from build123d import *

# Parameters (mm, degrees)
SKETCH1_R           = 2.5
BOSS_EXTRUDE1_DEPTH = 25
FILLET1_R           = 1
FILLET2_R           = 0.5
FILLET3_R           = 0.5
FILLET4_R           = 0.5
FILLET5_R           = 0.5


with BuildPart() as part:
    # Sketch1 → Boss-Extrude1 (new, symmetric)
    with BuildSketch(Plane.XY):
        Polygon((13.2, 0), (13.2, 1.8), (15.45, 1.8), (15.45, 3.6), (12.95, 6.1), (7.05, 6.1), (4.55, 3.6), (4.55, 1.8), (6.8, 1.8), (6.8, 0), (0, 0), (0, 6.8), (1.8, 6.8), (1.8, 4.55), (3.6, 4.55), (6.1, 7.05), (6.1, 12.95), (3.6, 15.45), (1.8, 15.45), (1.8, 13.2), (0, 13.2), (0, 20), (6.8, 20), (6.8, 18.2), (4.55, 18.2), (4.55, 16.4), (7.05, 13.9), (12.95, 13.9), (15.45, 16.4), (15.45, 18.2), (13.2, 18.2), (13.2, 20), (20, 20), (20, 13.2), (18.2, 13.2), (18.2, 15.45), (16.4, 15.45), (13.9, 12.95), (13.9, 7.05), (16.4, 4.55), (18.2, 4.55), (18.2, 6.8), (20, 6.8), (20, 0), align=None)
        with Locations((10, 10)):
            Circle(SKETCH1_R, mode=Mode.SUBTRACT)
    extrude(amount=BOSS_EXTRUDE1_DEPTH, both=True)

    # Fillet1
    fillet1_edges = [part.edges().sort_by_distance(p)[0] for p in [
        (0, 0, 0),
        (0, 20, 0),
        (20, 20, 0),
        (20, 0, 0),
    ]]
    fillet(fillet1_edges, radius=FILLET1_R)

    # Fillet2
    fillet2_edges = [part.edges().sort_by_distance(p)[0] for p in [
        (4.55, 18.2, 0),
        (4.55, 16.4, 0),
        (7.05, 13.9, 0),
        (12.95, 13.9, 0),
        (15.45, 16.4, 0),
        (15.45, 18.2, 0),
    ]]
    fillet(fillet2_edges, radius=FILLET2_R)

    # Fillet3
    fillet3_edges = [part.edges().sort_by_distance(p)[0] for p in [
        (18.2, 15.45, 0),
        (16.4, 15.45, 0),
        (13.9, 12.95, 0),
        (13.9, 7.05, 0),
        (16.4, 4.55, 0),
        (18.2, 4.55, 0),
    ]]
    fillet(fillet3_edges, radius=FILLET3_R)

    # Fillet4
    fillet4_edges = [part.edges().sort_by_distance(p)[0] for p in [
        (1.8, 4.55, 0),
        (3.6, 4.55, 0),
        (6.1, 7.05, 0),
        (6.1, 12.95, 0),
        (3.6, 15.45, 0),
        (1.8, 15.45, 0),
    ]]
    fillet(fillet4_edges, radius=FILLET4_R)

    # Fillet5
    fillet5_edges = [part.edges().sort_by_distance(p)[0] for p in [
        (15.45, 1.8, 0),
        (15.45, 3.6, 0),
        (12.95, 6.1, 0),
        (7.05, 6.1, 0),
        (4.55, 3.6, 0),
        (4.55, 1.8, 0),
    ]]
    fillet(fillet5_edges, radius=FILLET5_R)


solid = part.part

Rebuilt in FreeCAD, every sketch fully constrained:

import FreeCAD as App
import Part
import Sketcher
from FreeCAD import Vector
Q = App.Units.Quantity


def edges_at(feature, points):
    """Names of the edges that pass closest to the given points."""
    edges = feature.Shape.Edges
    near = lambda p: min(range(len(edges)), key=lambda i: edges[i].distToShape(Part.Vertex(*p))[0])
    return sorted({f"Edge{near(p) + 1}" for p in points})


def add_polygon(sketch, points):
    """Adds a closed chain of lines whose ends are joined by coincident constraints."""
    first, n = sketch.GeometryCount, len(points)
    for a, b in zip(points, points[1:] + points[:1]):
        sketch.addGeometry(Part.LineSegment(App.Vector(*a, 0), App.Vector(*b, 0)), False)
    for i in range(n):
        sketch.addConstraint(Sketcher.Constraint("Coincident", first + i, 2, first + (i + 1) % n, 1))

doc = App.newDocument("Part")
body = doc.addObject("PartDesign::Body", "Body")

sketch1 = body.newObject("Sketcher::SketchObject", "Sketch")
sketch1.AttachmentSupport = (doc.getObject("XY_Plane"), [""])
sketch1.MapMode = "FlatFace"
add_polygon(sketch1, [(13.2, 1.8), (13.2, 0), (20, 0), (20, 6.8), (18.2, 6.8), (18.2, 4.5), (16.4, 4.5), (13.9, 7), (13.9, 12.9), (16.4, 15.4), (18.2, 15.4), (18.2, 13.2), (20, 13.2), (20, 20), (13.2, 20), (13.2, 18.2), (15.4, 18.2), (15.4, 16.4), (12.9, 13.9), (7, 13.9), (4.5, 16.4), (4.5, 18.2), (6.8, 18.2), (6.8, 20), (0, 20), (0, 13.2), (1.8, 13.2), (1.8, 15.4), (3.6, 15.4), (6.1, 12.9), (6.1, 7), (3.6, 4.5), (1.8, 4.5), (1.8, 6.8), (0, 6.8), (0, 0), (6.8, 0), (6.8, 1.8), (4.5, 1.8), (4.5, 3.6), (7, 6.1), (12.9, 6.1), (15.4, 3.6), (15.4, 1.8)])
sketch1.addGeometry(Part.Circle(Vector(10, 10, 0), Vector(0, 0, 1), 2.5), False)
sketch1.addConstraint([
    Sketcher.Constraint("Vertical", 0),
    Sketcher.Constraint("Horizontal", 1),
    Sketcher.Constraint("Vertical", 2),
    Sketcher.Constraint("Horizontal", 3),
    Sketcher.Constraint("Vertical", 4),
    Sketcher.Constraint("Horizontal", 5),
    Sketcher.Constraint("Vertical", 7),
    Sketcher.Constraint("Horizontal", 9),
    Sketcher.Constraint("Vertical", 10),
    Sketcher.Constraint("Horizontal", 11),
    Sketcher.Constraint("Vertical", 12),
    Sketcher.Constraint("Horizontal", 13),
    Sketcher.Constraint("Vertical", 14),
    Sketcher.Constraint("Horizontal", 15),
    Sketcher.Constraint("Vertical", 16),
    Sketcher.Constraint("Horizontal", 18),
    Sketcher.Constraint("Vertical", 20),
    Sketcher.Constraint("Horizontal", 21),
    Sketcher.Constraint("Vertical", 22),
    Sketcher.Constraint("Horizontal", 23),
    Sketcher.Constraint("Vertical", 24),
    Sketcher.Constraint("Horizontal", 25),
    Sketcher.Constraint("Vertical", 26),
    Sketcher.Constraint("Horizontal", 27),
    Sketcher.Constraint("Vertical", 29),
    Sketcher.Constraint("Horizontal", 31),
    Sketcher.Constraint("Vertical", 32),
    Sketcher.Constraint("Horizontal", 33),
    Sketcher.Constraint("Vertical", 34),
    Sketcher.Constraint("Horizontal", 35),
    Sketcher.Constraint("Vertical", 36),
    Sketcher.Constraint("Horizontal", 37),
    Sketcher.Constraint("Vertical", 38),
    Sketcher.Constraint("Horizontal", 40),
    Sketcher.Constraint("Vertical", 42),
    Sketcher.Constraint("Horizontal", 43),
    Sketcher.Constraint("Coincident", 34, 2, -1, 1),
    Sketcher.Constraint("PointOnObject", 0, 2, -1),
    Sketcher.Constraint("PointOnObject", 23, 2, -2),
    Sketcher.Constraint("Perpendicular", 6, 8),
    Sketcher.Constraint("Parallel", 8, 17),
    Sketcher.Constraint("Perpendicular", 17, 19),
    Sketcher.Constraint("Parallel", 19, 28),
    Sketcher.Constraint("Perpendicular", 28, 30),
    Sketcher.Constraint("Parallel", 30, 39),
    Sketcher.Constraint("Perpendicular", 39, 41),
    Sketcher.Constraint("Horizontal", 16, 2, 19, 2),
    Sketcher.Constraint("Horizontal", 15, 2, 20, 2),
    Sketcher.Constraint("Horizontal", 13, 2, 22, 2),
    Sketcher.Constraint("Horizontal", 11, 2, 24, 2),
    Sketcher.Constraint("Horizontal", 9, 2, 26, 2),
    Sketcher.Constraint("Horizontal", 7, 2, 28, 2),
    Sketcher.Constraint("Horizontal", 6, 2, 29, 2),
    Sketcher.Constraint("Horizontal", 5, 2, 30, 2),
    Sketcher.Constraint("Horizontal", 3, 2, 32, 2),
    Sketcher.Constraint("Horizontal", 38, 2, 41, 2),
    Sketcher.Constraint("Horizontal", 37, 2, 42, 2),
    Sketcher.Constraint("Vertical", 5, 2, 8, 2),
    Sketcher.Constraint("Vertical", 4, 2, 9, 2),
    Sketcher.Constraint("Vertical", 2, 2, 11, 2),
    Sketcher.Constraint("Vertical", 0, 2, 13, 2),
    Sketcher.Constraint("Vertical", 27, 2, 30, 2),
    Sketcher.Constraint("Vertical", 26, 2, 31, 2),
    Sketcher.Constraint("Vertical", 22, 2, 35, 2),
    Sketcher.Constraint("Vertical", 20, 2, 37, 2),
    Sketcher.Constraint("Vertical", 18, 2, 39, 2),
    Sketcher.Constraint("Vertical", 17, 2, 40, 2),
    Sketcher.Constraint("Equal", 3, 5),
    Sketcher.Constraint("Equal", 15, 21),
    Sketcher.Constraint("Equal", 13, 23),
    Sketcher.Constraint("Equal", 11, 25),
    Sketcher.Constraint("Equal", 25, 27),
    Sketcher.Constraint("Equal", 33, 0),
    Sketcher.Constraint("Equal", 35, 2),
    Sketcher.Constraint("Equal", 43, 4),
    Sketcher.Constraint("Equal", 40, 7),
    Sketcher.Constraint("Equal", 4, 10),
    Sketcher.Constraint("Equal", 2, 12),
    Sketcher.Constraint("Equal", 0, 14),
    Sketcher.Constraint("Equal", 14, 16),
    Sketcher.Constraint("Equal", 36, 38),
    Sketcher.Constraint("Equal", 8, 17),
    Sketcher.Constraint("Diameter", 44, Q("5 mm")),
    Sketcher.Constraint("DistanceX", 1, 1, 1, 2, Q("6.8 mm")),
    Sketcher.Constraint("DistanceX", 3, 2, 3, 1, Q("1.8 mm")),
    Sketcher.Constraint("DistanceX", 18, 2, 18, 1, Q("5.9 mm")),
    Sketcher.Constraint("DistanceX", -1, 1, 44, 3, Q("10 mm")),
    Sketcher.Constraint("DistanceY", -1, 1, 44, 3, Q("10 mm")),
    Sketcher.Constraint("DistanceX", -1, 1, 1, 2, Q("20 mm")),
    Sketcher.Constraint("DistanceX", 15, 1, 15, 2, Q("2.25 mm")),
])
pad1 = body.newObject("PartDesign::Pad", "Pad")
pad1.Profile = sketch1
pad1.Length = 50
pad1.Midplane = True
doc.recompute()

fillet = body.newObject("PartDesign::Fillet", "Fillet")
fillet.Base = (pad1, edges_at(pad1, [
    (0, 0, 0),
    (0, 20, 0),
    (20, 20, 0),
    (20, 0, 0),
]))
fillet.Radius = 1
doc.recompute()

fillet2 = body.newObject("PartDesign::Fillet", "Fillet001")
fillet2.Base = (fillet, edges_at(fillet, [
    (4.55, 18.2, 0),
    (4.55, 16.4, 0),
    (7.05, 13.9, 0),
    (12.95, 13.9, 0),
    (15.45, 16.4, 0),
    (15.45, 18.2, 0),
]))
fillet2.Radius = 0.5
doc.recompute()

fillet3 = body.newObject("PartDesign::Fillet", "Fillet002")
fillet3.Base = (fillet2, edges_at(fillet2, [
    (18.2, 15.45, 0),
    (16.4, 15.45, 0),
    (13.9, 12.95, 0),
    (13.9, 7.05, 0),
    (16.4, 4.55, 0),
    (18.2, 4.55, 0),
]))
fillet3.Radius = 0.5
doc.recompute()

fillet4 = body.newObject("PartDesign::Fillet", "Fillet003")
fillet4.Base = (fillet3, edges_at(fillet3, [
    (1.8, 4.55, 0),
    (3.6, 4.55, 0),
    (6.1, 7.05, 0),
    (6.1, 12.95, 0),
    (3.6, 15.45, 0),
    (1.8, 15.45, 0),
]))
fillet4.Radius = 0.5
doc.recompute()

fillet5 = body.newObject("PartDesign::Fillet", "Fillet004")
fillet5.Base = (fillet4, edges_at(fillet4, [
    (15.45, 1.8, 0),
    (15.45, 3.6, 0),
    (12.95, 6.1, 0),
    (7.05, 6.1, 0),
    (4.55, 3.6, 0),
    (4.55, 1.8, 0),
]))
fillet5.Radius = 0.5

doc.recompute()
